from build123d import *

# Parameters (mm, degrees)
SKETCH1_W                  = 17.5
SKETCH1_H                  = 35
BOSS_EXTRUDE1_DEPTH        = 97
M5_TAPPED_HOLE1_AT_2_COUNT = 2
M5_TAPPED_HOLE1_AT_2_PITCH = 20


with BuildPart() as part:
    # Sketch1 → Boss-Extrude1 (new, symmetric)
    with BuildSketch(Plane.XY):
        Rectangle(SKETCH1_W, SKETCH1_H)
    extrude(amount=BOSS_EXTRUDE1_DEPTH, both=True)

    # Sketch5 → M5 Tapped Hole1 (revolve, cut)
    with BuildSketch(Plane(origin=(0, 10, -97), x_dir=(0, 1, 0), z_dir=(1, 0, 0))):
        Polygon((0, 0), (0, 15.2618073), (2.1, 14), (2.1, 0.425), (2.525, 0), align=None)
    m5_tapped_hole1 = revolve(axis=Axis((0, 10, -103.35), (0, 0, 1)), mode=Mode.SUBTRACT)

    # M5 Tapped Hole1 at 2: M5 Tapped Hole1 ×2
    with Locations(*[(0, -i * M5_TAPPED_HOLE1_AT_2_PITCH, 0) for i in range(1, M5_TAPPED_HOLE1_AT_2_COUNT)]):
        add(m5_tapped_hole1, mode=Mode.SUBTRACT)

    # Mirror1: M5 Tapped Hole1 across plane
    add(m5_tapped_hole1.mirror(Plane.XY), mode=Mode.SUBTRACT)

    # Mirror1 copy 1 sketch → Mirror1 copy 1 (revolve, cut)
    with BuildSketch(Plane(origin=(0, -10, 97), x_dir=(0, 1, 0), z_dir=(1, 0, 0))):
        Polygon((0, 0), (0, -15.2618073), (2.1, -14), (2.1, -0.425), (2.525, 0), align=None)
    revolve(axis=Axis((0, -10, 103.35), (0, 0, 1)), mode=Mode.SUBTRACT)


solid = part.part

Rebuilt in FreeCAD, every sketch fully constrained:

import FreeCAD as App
import Part
import Sketcher

V = App.Vector
Q = App.Units.Quantity

doc = App.newDocument("Part")
body = doc.addObject("PartDesign::Body", "Body")

sketch1 = body.newObject("Sketcher::SketchObject", "Sketch")
sketch1.AttachmentSupport = (doc.getObject("XY_Plane"), [""])
sketch1.MapMode = "FlatFace"
sketch1.addGeometry(Part.LineSegment(V(-9, 18, 0), V(-9, -18, 0)), False)
sketch1.addGeometry(Part.LineSegment(V(-9, -18, 0), V(9, -18, 0)), False)
sketch1.addGeometry(Part.LineSegment(V(9, -18, 0), V(9, 18, 0)), False)
sketch1.addGeometry(Part.LineSegment(V(9, 18, 0), V(-9, 18, 0)), False)
sketch1.addConstraint(Sketcher.Constraint("Coincident", 0, 2, 1, 1))
sketch1.addConstraint(Sketcher.Constraint("Coincident", 1, 2, 2, 1))
sketch1.addConstraint(Sketcher.Constraint("Coincident", 2, 2, 3, 1))
sketch1.addConstraint(Sketcher.Constraint("Coincident", 3, 2, 0, 1))
sketch1.addConstraint(Sketcher.Constraint("Vertical", 0))
sketch1.addConstraint(Sketcher.Constraint("Horizontal", 1))
sketch1.addConstraint(Sketcher.Constraint("Vertical", 2))
sketch1.addConstraint(Sketcher.Constraint("Horizontal", 3))
sketch1.addConstraint(Sketcher.Constraint("Symmetric", 0, 2, 2, 2, -1, 1))
sketch1.addConstraint(Sketcher.Constraint("DistanceY", 0, 2, 0, 1, 35.0))
sketch1.addConstraint(Sketcher.Constraint("DistanceX", 1, 1, 1, 2, 17.5))
pad1 = body.newObject("PartDesign::Pad", "Pad")
pad1.Profile = sketch1
pad1.Length = 194
pad1.Midplane = True

sketch2 = body.newObject("Sketcher::SketchObject", "Sketch001")
sketch2.AttachmentSupport = (doc.getObject("YZ_Plane"), [""])
sketch2.MapMode = "FlatFace"
sketch2.addGeometry(Part.LineSegment(V(10, -81.7, 0), V(10, -97, 0)), False)
sketch2.addGeometry(Part.LineSegment(V(10, -97, 0), V(12.5, -97, 0)), False)
sketch2.addGeometry(Part.LineSegment(V(12.5, -97, 0), V(12.1, -96.6, 0)), False)
sketch2.addGeometry(Part.LineSegment(V(12.1, -96.6, 0), V(12.1, -83, 0)), False)
sketch2.addGeometry(Part.LineSegment(V(12.1, -83, 0), V(10, -81.7, 0)), False)
sketch2.addGeometry(Part.LineSegment(V(10, -97, 0), V(10, -81.7, 0)), True)
sketch2.addConstraint(Sketcher.Constraint("Coincident", 0, 2, 1, 1))
sketch2.addConstraint(Sketcher.Constraint("Coincident", 1, 2, 2, 1))
sketch2.addConstraint(Sketcher.Constraint("Coincident", 2, 2, 3, 1))
sketch2.addConstraint(Sketcher.Constraint("Coincident", 3, 2, 4, 1))
sketch2.addConstraint(Sketcher.Constraint("Coincident", 4, 2, 0, 1))
sketch2.addConstraint(Sketcher.Constraint("Vertical", 0))
sketch2.addConstraint(Sketcher.Constraint("Horizontal", 1))
sketch2.addConstraint(Sketcher.Constraint("Vertical", 3))
sketch2.addConstraint(Sketcher.Constraint("Vertical", 5))
sketch2.addConstraint(Sketcher.Constraint("Coincident", 5, 1, 0, 2))
sketch2.addConstraint(Sketcher.Constraint("Equal", 0, 5))
sketch2.addConstraint(Sketcher.Constraint("Angle", 2, Q("135 deg")))
sketch2.addConstraint(Sketcher.Constraint("Angle", 4, Q("149 deg")))
sketch2.addConstraint(Sketcher.Constraint("DistanceX", -1, 1, 0, 2, 10.0))
sketch2.addConstraint(Sketcher.Constraint("DistanceY", 0, 2, -1, 1, 97.0))
sketch2.addConstraint(Sketcher.Constraint("DistanceY", 3, 2, -1, 1, 83.0))
sketch2.addConstraint(Sketcher.Constraint("DistanceX", -1, 1, 2, 2, 12.1))
sketch2.addConstraint(Sketcher.Constraint("DistanceX", 1, 1, 1, 2, 2.525))
groove = body.newObject("PartDesign::Groove", "Groove")
groove.Profile = sketch2
groove.ReferenceAxis = (sketch2, ["Axis0"])
groove.Angle = 360
doc.recompute()

linearpattern = body.newObject("PartDesign::LinearPattern", "LinearPattern")
linearpattern.Originals = [groove]
linearpattern.Direction = (doc.getObject("Y_Axis"), [""])
linearpattern.Mode = "offset"
linearpattern.Offset = 20
linearpattern.Occurrences = 2
linearpattern.Reversed = True
body.Tip = linearpattern
doc.recompute()

mirrored = body.newObject("PartDesign::Mirrored", "Mirrored")
mirrored.Originals = [groove]
mirrored.MirrorPlane = (doc.getObject("XY_Plane"), [""])
body.Tip = mirrored

sketch3 = body.newObject("Sketcher::SketchObject", "Sketch002")
sketch3.AttachmentSupport = (doc.getObject("YZ_Plane"), [""])
sketch3.MapMode = "FlatFace"
sketch3.addGeometry(Part.LineSegment(V(-10, 97, 0), V(-10, 81.7, 0)), False)
sketch3.addGeometry(Part.LineSegment(V(-10, 81.7, 0), V(-7.9, 83, 0)), False)
sketch3.addGeometry(Part.LineSegment(V(-7.9, 83, 0), V(-7.9, 96.6, 0)), False)
sketch3.addGeometry(Part.LineSegment(V(-7.9, 96.6, 0), V(-7.5, 97, 0)), False)
sketch3.addGeometry(Part.LineSegment(V(-7.5, 97, 0), V(-10, 97, 0)), False)
sketch3.addGeometry(Part.LineSegment(V(-10, 81.7, 0), V(-10, 97, 0)), True)
sketch3.addConstraint(Sketcher.Constraint("Coincident", 0, 2, 1, 1))
sketch3.addConstraint(Sketcher.Constraint("Coincident", 1, 2, 2, 1))
sketch3.addConstraint(Sketcher.Constraint("Coincident", 2, 2, 3, 1))
sketch3.addConstraint(Sketcher.Constraint("Coincident", 3, 2, 4, 1))
sketch3.addConstraint(Sketcher.Constraint("Coincident", 4, 2, 0, 1))
sketch3.addConstraint(Sketcher.Constraint("Vertical", 0))
sketch3.addConstraint(Sketcher.Constraint("Vertical", 2))
sketch3.addConstraint(Sketcher.Constraint("Horizontal", 4))
sketch3.addConstraint(Sketcher.Constraint("Vertical", 5))
sketch3.addConstraint(Sketcher.Constraint("Coincident", 5, 1, 0, 2))
sketch3.addConstraint(Sketcher.Constraint("Horizontal", 3, 2, 5, 2))
sketch3.addConstraint(Sketcher.Constraint("Angle", 1, Q("31 deg")))
sketch3.addConstraint(Sketcher.Constraint("Angle", 3, Q("45 deg")))
sketch3.addConstraint(Sketcher.Constraint("DistanceX", 0, 2, -1, 1, 10.0))
sketch3.addConstraint(Sketcher.Constraint("DistanceY", -1, 1, 1, 2, 83.0))
sketch3.addConstraint(Sketcher.Constraint("DistanceY", -1, 1, 3, 2, 97.0))
sketch3.addConstraint(Sketcher.Constraint("DistanceX", 1, 2, -1, 1, 7.9))
sketch3.addConstraint(Sketcher.Constraint("DistanceX", 4, 2, 4, 1, 2.525))
groove2 = body.newObject("PartDesign::Groove", "Groove001")
groove2.Profile = sketch3
groove2.ReferenceAxis = (sketch3, ["Axis0"])
groove2.Angle = 360

doc.recompute()
